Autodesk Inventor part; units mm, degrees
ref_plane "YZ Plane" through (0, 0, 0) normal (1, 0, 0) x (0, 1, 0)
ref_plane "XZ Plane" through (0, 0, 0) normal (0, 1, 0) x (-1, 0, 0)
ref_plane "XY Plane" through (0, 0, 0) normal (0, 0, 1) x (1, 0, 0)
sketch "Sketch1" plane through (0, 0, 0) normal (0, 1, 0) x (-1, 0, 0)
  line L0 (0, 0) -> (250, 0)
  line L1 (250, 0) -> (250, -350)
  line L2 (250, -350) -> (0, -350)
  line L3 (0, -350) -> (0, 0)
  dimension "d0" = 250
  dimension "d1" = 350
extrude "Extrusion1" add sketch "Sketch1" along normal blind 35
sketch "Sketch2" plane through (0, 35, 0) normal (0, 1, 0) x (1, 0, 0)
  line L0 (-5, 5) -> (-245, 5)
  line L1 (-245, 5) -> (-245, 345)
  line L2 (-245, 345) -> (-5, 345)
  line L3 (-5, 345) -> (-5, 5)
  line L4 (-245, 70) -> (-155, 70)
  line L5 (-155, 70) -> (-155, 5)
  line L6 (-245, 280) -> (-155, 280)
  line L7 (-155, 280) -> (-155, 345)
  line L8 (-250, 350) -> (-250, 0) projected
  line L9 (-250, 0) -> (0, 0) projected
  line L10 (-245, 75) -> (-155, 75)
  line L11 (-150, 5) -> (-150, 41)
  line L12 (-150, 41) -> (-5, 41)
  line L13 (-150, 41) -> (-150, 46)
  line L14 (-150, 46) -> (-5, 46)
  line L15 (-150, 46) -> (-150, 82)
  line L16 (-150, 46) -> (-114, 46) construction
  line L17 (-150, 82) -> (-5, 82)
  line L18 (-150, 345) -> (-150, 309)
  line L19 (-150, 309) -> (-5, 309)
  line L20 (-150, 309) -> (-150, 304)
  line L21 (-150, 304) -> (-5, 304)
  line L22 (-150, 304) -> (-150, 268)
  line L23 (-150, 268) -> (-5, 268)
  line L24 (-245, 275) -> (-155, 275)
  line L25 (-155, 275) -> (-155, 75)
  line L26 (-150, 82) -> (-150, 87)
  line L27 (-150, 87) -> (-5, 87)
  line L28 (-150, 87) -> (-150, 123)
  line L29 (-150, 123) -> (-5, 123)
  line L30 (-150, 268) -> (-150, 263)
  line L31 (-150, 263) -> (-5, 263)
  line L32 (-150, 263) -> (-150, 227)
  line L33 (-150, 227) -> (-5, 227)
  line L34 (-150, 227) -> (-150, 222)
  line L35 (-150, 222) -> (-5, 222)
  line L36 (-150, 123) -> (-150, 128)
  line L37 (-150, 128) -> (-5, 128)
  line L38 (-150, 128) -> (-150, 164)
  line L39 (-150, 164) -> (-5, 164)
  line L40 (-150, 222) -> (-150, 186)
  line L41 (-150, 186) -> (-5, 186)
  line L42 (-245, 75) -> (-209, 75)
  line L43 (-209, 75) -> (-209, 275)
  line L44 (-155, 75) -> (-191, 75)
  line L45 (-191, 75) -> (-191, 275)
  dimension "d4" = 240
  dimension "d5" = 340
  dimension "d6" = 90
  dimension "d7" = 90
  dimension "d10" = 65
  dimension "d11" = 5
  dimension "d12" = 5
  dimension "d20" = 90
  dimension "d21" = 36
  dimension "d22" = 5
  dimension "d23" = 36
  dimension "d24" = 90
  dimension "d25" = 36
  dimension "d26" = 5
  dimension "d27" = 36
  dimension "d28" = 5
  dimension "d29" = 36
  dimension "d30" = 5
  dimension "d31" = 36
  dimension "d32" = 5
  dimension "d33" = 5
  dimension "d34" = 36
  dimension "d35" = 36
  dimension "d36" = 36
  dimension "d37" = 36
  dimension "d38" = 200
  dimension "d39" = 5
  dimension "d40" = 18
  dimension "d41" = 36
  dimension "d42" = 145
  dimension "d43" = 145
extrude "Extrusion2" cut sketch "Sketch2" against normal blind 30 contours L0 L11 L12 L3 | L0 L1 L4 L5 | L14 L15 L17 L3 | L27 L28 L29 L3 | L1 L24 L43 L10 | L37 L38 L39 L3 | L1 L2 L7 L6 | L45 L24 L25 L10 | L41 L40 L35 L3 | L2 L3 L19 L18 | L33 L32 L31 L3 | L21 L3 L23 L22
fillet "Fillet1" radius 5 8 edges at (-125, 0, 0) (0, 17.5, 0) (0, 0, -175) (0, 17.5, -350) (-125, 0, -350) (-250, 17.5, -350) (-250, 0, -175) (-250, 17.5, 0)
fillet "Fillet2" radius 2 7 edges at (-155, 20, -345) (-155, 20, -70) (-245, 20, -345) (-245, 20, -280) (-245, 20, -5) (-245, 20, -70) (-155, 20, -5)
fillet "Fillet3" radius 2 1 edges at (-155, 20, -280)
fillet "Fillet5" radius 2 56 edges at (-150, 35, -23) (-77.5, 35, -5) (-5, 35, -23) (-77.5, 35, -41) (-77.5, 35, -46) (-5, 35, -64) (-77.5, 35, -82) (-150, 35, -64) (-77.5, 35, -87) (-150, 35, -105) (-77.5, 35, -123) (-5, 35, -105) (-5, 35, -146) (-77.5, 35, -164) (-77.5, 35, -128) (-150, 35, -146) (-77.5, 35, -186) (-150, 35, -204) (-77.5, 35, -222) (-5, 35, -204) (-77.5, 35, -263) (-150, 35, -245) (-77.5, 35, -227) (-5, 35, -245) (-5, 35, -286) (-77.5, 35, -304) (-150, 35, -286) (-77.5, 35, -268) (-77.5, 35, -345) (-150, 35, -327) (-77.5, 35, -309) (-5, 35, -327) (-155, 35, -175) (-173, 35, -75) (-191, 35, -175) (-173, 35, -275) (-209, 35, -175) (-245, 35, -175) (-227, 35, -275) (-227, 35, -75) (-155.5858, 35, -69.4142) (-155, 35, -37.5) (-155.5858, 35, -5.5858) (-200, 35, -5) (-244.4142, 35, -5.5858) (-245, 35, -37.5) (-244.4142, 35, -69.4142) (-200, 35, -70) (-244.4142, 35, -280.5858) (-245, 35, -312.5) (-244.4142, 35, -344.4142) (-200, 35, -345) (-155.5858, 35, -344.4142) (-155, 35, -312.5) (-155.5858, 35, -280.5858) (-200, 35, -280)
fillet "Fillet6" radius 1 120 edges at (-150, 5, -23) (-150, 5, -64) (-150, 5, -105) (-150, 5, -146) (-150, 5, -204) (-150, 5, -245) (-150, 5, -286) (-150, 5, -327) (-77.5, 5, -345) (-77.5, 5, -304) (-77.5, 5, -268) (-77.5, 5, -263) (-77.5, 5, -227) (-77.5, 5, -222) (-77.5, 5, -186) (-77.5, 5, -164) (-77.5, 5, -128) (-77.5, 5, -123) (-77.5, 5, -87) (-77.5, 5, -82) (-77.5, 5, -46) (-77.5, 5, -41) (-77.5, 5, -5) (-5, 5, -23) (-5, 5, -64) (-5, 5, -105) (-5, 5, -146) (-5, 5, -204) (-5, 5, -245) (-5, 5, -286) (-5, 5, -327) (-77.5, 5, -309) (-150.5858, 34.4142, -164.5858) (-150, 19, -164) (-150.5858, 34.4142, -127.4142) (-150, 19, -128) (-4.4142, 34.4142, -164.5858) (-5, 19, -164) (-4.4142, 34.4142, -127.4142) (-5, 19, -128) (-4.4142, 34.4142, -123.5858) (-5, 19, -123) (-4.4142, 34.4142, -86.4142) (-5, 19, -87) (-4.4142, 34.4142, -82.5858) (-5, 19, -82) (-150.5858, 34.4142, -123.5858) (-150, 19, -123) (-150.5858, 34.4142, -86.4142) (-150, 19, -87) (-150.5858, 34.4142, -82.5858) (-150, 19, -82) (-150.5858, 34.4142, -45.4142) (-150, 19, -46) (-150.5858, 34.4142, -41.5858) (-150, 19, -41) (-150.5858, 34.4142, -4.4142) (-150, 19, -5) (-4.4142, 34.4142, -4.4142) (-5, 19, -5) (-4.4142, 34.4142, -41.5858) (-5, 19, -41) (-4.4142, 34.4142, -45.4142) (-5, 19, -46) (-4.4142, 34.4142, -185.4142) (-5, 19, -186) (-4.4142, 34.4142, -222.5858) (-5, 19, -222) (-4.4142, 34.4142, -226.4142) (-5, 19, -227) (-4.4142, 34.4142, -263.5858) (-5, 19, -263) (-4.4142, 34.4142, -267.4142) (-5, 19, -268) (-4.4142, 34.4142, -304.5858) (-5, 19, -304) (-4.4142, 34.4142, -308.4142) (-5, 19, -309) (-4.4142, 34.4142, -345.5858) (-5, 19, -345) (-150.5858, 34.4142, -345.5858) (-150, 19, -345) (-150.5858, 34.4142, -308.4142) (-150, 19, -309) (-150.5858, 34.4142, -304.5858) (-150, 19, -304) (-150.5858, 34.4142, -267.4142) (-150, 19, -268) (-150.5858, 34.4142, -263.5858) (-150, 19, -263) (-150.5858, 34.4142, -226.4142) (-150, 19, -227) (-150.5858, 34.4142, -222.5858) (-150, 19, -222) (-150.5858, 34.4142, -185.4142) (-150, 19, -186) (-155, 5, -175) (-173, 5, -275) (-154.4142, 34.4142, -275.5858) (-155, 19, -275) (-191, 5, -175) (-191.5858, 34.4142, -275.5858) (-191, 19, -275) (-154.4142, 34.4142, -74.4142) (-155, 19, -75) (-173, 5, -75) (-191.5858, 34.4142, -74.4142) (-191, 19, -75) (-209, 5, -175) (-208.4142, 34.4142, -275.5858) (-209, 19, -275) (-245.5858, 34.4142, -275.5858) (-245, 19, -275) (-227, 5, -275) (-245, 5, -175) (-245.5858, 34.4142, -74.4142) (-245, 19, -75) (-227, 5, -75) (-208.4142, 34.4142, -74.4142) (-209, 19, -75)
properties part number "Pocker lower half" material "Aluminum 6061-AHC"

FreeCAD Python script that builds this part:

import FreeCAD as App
import Part
import Sketcher
Q = App.Units.Quantity


def edges_at(feature, points):
    """Names of the edges that pass closest to the given points."""
    edges = feature.Shape.Edges
    near = lambda p: min(range(len(edges)), key=lambda i: edges[i].distToShape(Part.Vertex(*p))[0])
    return sorted({f"Edge{near(p) + 1}" for p in points})


def add_polygon(sketch, points):
    """Adds a closed chain of lines whose ends are joined by coincident constraints."""
    first, n = sketch.GeometryCount, len(points)
    for a, b in zip(points, points[1:] + points[:1]):
        sketch.addGeometry(Part.LineSegment(App.Vector(*a, 0), App.Vector(*b, 0)), False)
    for i in range(n):
        sketch.addConstraint(Sketcher.Constraint("Coincident", first + i, 2, first + (i + 1) % n, 1))

doc = App.newDocument("Part")
body = doc.addObject("PartDesign::Body", "Body")

sketch1 = doc.addObject("Sketcher::SketchObject", "Sketch")
body.addObject(sketch1)
sketch1.AttachmentSupport = (doc.XZ_Plane, [""])
sketch1.MapMode = "FlatFace"
add_polygon(sketch1, [(-250, 0), (0, 0), (0, -350), (-250, -350)])
sketch1.addConstraint(Sketcher.Constraint("Horizontal", 0))
sketch1.addConstraint(Sketcher.Constraint("Vertical", 1))
sketch1.addConstraint(Sketcher.Constraint("Horizontal", 2))
sketch1.addConstraint(Sketcher.Constraint("Vertical", 3))
sketch1.addConstraint(Sketcher.Constraint("Coincident", 0, 2, -1, 1))
sketch1.addConstraint(Sketcher.Constraint("DistanceX", 0, 1, 0, 2, Q("250 mm")))
sketch1.addConstraint(Sketcher.Constraint("DistanceY", 1, 2, 1, 1, Q("350 mm")))
pad1 = doc.addObject("PartDesign::Pad", "Pad")
body.addObject(pad1)
pad1.Profile = sketch1
pad1.Length = 35
pad1.Reversed = True

sketch2 = doc.addObject("Sketcher::SketchObject", "Sketch001")
body.addObject(sketch2)
sketch2.AttachmentSupport = (doc.XZ_Plane, [""])
sketch2.MapMode = "FlatFace"
sketch2.AttachmentOffset = App.Placement(App.Vector(0, 0, -35), App.Rotation())
add_polygon(sketch2, [(-150, -5), (-5, -5), (-5, -41), (-150, -41)])
add_polygon(sketch2, [(-245, -5), (-155, -5), (-155, -70), (-245, -70)])
add_polygon(sketch2, [(-150, -46), (-5, -46), (-5, -82), (-150, -82)])
add_polygon(sketch2, [(-150, -87), (-5, -87), (-5, -123), (-150, -123)])
add_polygon(sketch2, [(-245, -275), (-245, -75), (-209, -75), (-209, -275)])
add_polygon(sketch2, [(-150, -128), (-5, -128), (-5, -164), (-150, -164)])
add_polygon(sketch2, [(-245, -345), (-245, -280), (-155, -280), (-155, -345)])
add_polygon(sketch2, [(-191, -275), (-191, -75), (-155, -75), (-155, -275)])
add_polygon(sketch2, [(-150, -186), (-5, -186), (-5, -222), (-150, -222)])
add_polygon(sketch2, [(-5, -345), (-150, -345), (-150, -309), (-5, -309)])
add_polygon(sketch2, [(-150, -227), (-5, -227), (-5, -263), (-150, -263)])
add_polygon(sketch2, [(-5, -304), (-150, -304), (-150, -268), (-5, -268)])
sketch2.addConstraint(Sketcher.Constraint("Horizontal", 0))
sketch2.addConstraint(Sketcher.Constraint("Vertical", 1))
sketch2.addConstraint(Sketcher.Constraint("Horizontal", 2))
sketch2.addConstraint(Sketcher.Constraint("Vertical", 3))
sketch2.addConstraint(Sketcher.Constraint("Horizontal", 4))
sketch2.addConstraint(Sketcher.Constraint("Vertical", 5))
sketch2.addConstraint(Sketcher.Constraint("Horizontal", 6))
sketch2.addConstraint(Sketcher.Constraint("Vertical", 7))
sketch2.addConstraint(Sketcher.Constraint("Horizontal", 8))
sketch2.addConstraint(Sketcher.Constraint("Vertical", 9))
sketch2.addConstraint(Sketcher.Constraint("Horizontal", 10))
sketch2.addConstraint(Sketcher.Constraint("Vertical", 11))
sketch2.addConstraint(Sketcher.Constraint("Horizontal", 12))
sketch2.addConstraint(Sketcher.Constraint("Vertical", 13))
sketch2.addConstraint(Sketcher.Constraint("Horizontal", 14))
sketch2.addConstraint(Sketcher.Constraint("Vertical", 15))
sketch2.addConstraint(Sketcher.Constraint("Vertical", 16))
sketch2.addConstraint(Sketcher.Constraint("Horizontal", 17))
sketch2.addConstraint(Sketcher.Constraint("Vertical", 18))
sketch2.addConstraint(Sketcher.Constraint("Horizontal", 19))
sketch2.addConstraint(Sketcher.Constraint("Horizontal", 20))
sketch2.addConstraint(Sketcher.Constraint("Vertical", 21))
sketch2.addConstraint(Sketcher.Constraint("Horizontal", 22))
sketch2.addConstraint(Sketcher.Constraint("Vertical", 23))
sketch2.addConstraint(Sketcher.Constraint("Vertical", 24))
sketch2.addConstraint(Sketcher.Constraint("Horizontal", 25))
sketch2.addConstraint(Sketcher.Constraint("Vertical", 26))
sketch2.addConstraint(Sketcher.Constraint("Horizontal", 27))
sketch2.addConstraint(Sketcher.Constraint("Vertical", 28))
sketch2.addConstraint(Sketcher.Constraint("Horizontal", 29))
sketch2.addConstraint(Sketcher.Constraint("Vertical", 30))
sketch2.addConstraint(Sketcher.Constraint("Horizontal", 31))
sketch2.addConstraint(Sketcher.Constraint("Horizontal", 32))
sketch2.addConstraint(Sketcher.Constraint("Vertical", 33))
sketch2.addConstraint(Sketcher.Constraint("Horizontal", 34))
sketch2.addConstraint(Sketcher.Constraint("Vertical", 35))
sketch2.addConstraint(Sketcher.Constraint("Horizontal", 36))
sketch2.addConstraint(Sketcher.Constraint("Vertical", 37))
sketch2.addConstraint(Sketcher.Constraint("Horizontal", 38))
sketch2.addConstraint(Sketcher.Constraint("Vertical", 39))
sketch2.addConstraint(Sketcher.Constraint("Horizontal", 40))
sketch2.addConstraint(Sketcher.Constraint("Vertical", 41))
sketch2.addConstraint(Sketcher.Constraint("Horizontal", 42))
sketch2.addConstraint(Sketcher.Constraint("Vertical", 43))
sketch2.addConstraint(Sketcher.Constraint("Horizontal", 44))
sketch2.addConstraint(Sketcher.Constraint("Vertical", 45))
sketch2.addConstraint(Sketcher.Constraint("Horizontal", 46))
sketch2.addConstraint(Sketcher.Constraint("Vertical", 47))
sketch2.addConstraint(Sketcher.Constraint("Horizontal", 3, 2, 4, 2))
sketch2.addConstraint(Sketcher.Constraint("Horizontal", 17, 2, 28, 2))
sketch2.addConstraint(Sketcher.Constraint("Horizontal", 19, 2, 30, 2))
sketch2.addConstraint(Sketcher.Constraint("Horizontal", 27, 2, 36, 2))
sketch2.addConstraint(Sketcher.Constraint("Vertical", 1, 2, 8, 2))
sketch2.addConstraint(Sketcher.Constraint("Vertical", 3, 2, 10, 2))
sketch2.addConstraint(Sketcher.Constraint("Vertical", 9, 2, 12, 2))
sketch2.addConstraint(Sketcher.Constraint("Vertical", 11, 2, 14, 2))
sketch2.addConstraint(Sketcher.Constraint("Vertical", 7, 2, 16, 2))
sketch2.addConstraint(Sketcher.Constraint("Vertical", 13, 2, 20, 2))
sketch2.addConstraint(Sketcher.Constraint("Vertical", 15, 2, 22, 2))
sketch2.addConstraint(Sketcher.Constraint("Vertical", 19, 2, 24, 2))
sketch2.addConstraint(Sketcher.Constraint("Vertical", 5, 2, 25, 2))
sketch2.addConstraint(Sketcher.Constraint("Vertical", 26, 2, 29, 2))
sketch2.addConstraint(Sketcher.Constraint("Vertical", 21, 2, 32, 2))
sketch2.addConstraint(Sketcher.Constraint("Vertical", 23, 2, 34, 2))
sketch2.addConstraint(Sketcher.Constraint("Vertical", 35, 2, 36, 2))
sketch2.addConstraint(Sketcher.Constraint("Vertical", 33, 2, 38, 2))
sketch2.addConstraint(Sketcher.Constraint("Vertical", 39, 2, 40, 2))
sketch2.addConstraint(Sketcher.Constraint("Vertical", 37, 2, 42, 2))
sketch2.addConstraint(Sketcher.Constraint("Vertical", 43, 2, 44, 2))
sketch2.addConstraint(Sketcher.Constraint("Vertical", 41, 2, 46, 2))
sketch2.addConstraint(Sketcher.Constraint("Equal", 19, 29))
sketch2.addConstraint(Sketcher.Constraint("Equal", 31, 1))
sketch2.addConstraint(Sketcher.Constraint("Equal", 3, 9))
sketch2.addConstraint(Sketcher.Constraint("Equal", 11, 13))
sketch2.addConstraint(Sketcher.Constraint("Equal", 15, 21))
sketch2.addConstraint(Sketcher.Constraint("Equal", 7, 24))
sketch2.addConstraint(Sketcher.Constraint("Equal", 23, 33))
sketch2.addConstraint(Sketcher.Constraint("Equal", 35, 37))
sketch2.addConstraint(Sketcher.Constraint("Equal", 39, 41))
sketch2.addConstraint(Sketcher.Constraint("Equal", 43, 45))
sketch2.addConstraint(Sketcher.Constraint("DistanceX", 0, 1, 0, 2, Q("145 mm")))
sketch2.addConstraint(Sketcher.Constraint("DistanceX", 4, 1, 4, 2, Q("90 mm")))
sketch2.addConstraint(Sketcher.Constraint("DistanceX", 17, 1, 17, 2, Q("36 mm")))
sketch2.addConstraint(Sketcher.Constraint("DistanceY", 5, 2, 5, 1, Q("65 mm")))
sketch2.addConstraint(Sketcher.Constraint("DistanceY", 16, 1, 16, 2, Q("200 mm")))
sketch2.addConstraint(Sketcher.Constraint("DistanceX", 0, 2, -1, 1, Q("5 mm")))
sketch2.addConstraint(Sketcher.Constraint("DistanceY", 0, 2, -1, 1, Q("5 mm")))
sketch2.addConstraint(Sketcher.Constraint("DistanceX", 4, 2, 3, 2, Q("5 mm")))
sketch2.addConstraint(Sketcher.Constraint("DistanceY", 8, 2, 1, 2, Q("5 mm")))
sketch2.addConstraint(Sketcher.Constraint("DistanceY", 12, 2, 9, 2, Q("5 mm")))
sketch2.addConstraint(Sketcher.Constraint("DistanceY", 16, 2, 6, 2, Q("5 mm")))
sketch2.addConstraint(Sketcher.Constraint("DistanceY", 20, 2, 13, 2, Q("5 mm")))
sketch2.addConstraint(Sketcher.Constraint("DistanceY", 24, 2, 19, 2, Q("5 mm")))
sketch2.addConstraint(Sketcher.Constraint("DistanceY", 40, 2, 33, 2, Q("5 mm")))
sketch2.addConstraint(Sketcher.Constraint("DistanceY", 37, 2, 44, 2, Q("5 mm")))
sketch2.addConstraint(Sketcher.Constraint("DistanceY", 45, 2, 42, 2, Q("5 mm")))
pocket1 = doc.addObject("PartDesign::Pocket", "Pocket")
body.addObject(pocket1)
pocket1.Profile = sketch2
pocket1.Length = 30
pocket1.Reversed = True
doc.recompute()

fillet = doc.addObject("PartDesign::Fillet", "Fillet")
body.addObject(fillet)
fillet.Base = (pocket1, edges_at(pocket1, [
    (-125, 0, 0),
    (0, 17.5, 0),
    (0, 0, -175),
    (0, 17.5, -350),
    (-125, 0, -350),
    (-250, 17.5, -350),
    (-250, 0, -175),
    (-250, 17.5, 0),
]))
fillet.Radius = 5
doc.recompute()

fillet2 = doc.addObject("PartDesign::Fillet", "Fillet001")
body.addObject(fillet2)
fillet2.Base = (fillet, edges_at(fillet, [
    (-155, 20, -345),
    (-155, 20, -70),
    (-245, 20, -345),
    (-245, 20, -280),
    (-245, 20, -5),
    (-245, 20, -70),
    (-155, 20, -5),
]))
fillet2.Radius = 2
doc.recompute()

fillet3 = doc.addObject("PartDesign::Fillet", "Fillet002")
body.addObject(fillet3)
fillet3.Base = (fillet2, edges_at(fillet2, [(-155, 20, -280)]))
fillet3.Radius = 2
doc.recompute()

fillet4 = doc.addObject("PartDesign::Fillet", "Fillet003")
body.addObject(fillet4)
fillet4.Base = (fillet3, edges_at(fillet3, [
    (-150, 35, -23),
    (-77.5, 35, -5),
    (-5, 35, -23),
    (-77.5, 35, -41),
    (-77.5, 35, -46),
    (-5, 35, -64),
    (-77.5, 35, -82),
    (-150, 35, -64),
    (-77.5, 35, -87),
    (-150, 35, -105),
    (-77.5, 35, -123),
    (-5, 35, -105),
    (-5, 35, -146),
    (-77.5, 35, -164),
    (-77.5, 35, -128),
    (-150, 35, -146),
    (-77.5, 35, -186),
    (-150, 35, -204),
    (-77.5, 35, -222),
    (-5, 35, -204),
    (-77.5, 35, -263),
    (-150, 35, -245),
    (-77.5, 35, -227),
    (-5, 35, -245),
    (-5, 35, -286),
    (-77.5, 35, -304),
    (-150, 35, -286),
    (-77.5, 35, -268),
    (-77.5, 35, -345),
    (-150, 35, -327),
    (-77.5, 35, -309),
    (-5, 35, -327),
    (-155, 35, -175),
    (-173, 35, -75),
    (-191, 35, -175),
    (-173, 35, -275),
    (-209, 35, -175),
    (-245, 35, -175),
    (-227, 35, -275),
    (-227, 35, -75),
    (-155.586, 35, -69.414),
    (-155, 35, -37.5),
    (-155.586, 35, -5.586),
    (-200, 35, -5),
    (-244.414, 35, -5.586),
    (-245, 35, -37.5),
    (-244.414, 35, -69.414),
    (-200, 35, -70),
    (-244.414, 35, -280.586),
    (-245, 35, -312.5),
    (-244.414, 35, -344.414),
    (-200, 35, -345),
    (-155.586, 35, -344.414),
    (-155, 35, -312.5),
    (-155.586, 35, -280.586),
    (-200, 35, -280),
]))
fillet4.Radius = 2
doc.recompute()

fillet5 = doc.addObject("PartDesign::Fillet", "Fillet004")
body.addObject(fillet5)
fillet5.Base = (fillet4, edges_at(fillet4, [
    (-150, 5, -23),
    (-150, 5, -64),
    (-150, 5, -105),
    (-150, 5, -146),
    (-150, 5, -204),
    (-150, 5, -245),
    (-150, 5, -286),
    (-150, 5, -327),
    (-77.5, 5, -345),
    (-77.5, 5, -304),
    (-77.5, 5, -268),
    (-77.5, 5, -263),
    (-77.5, 5, -227),
    (-77.5, 5, -222),
    (-77.5, 5, -186),
    (-77.5, 5, -164),
    (-77.5, 5, -128),
    (-77.5, 5, -123),
    (-77.5, 5, -87),
    (-77.5, 5, -82),
    (-77.5, 5, -46),
    (-77.5, 5, -41),
    (-77.5, 5, -5),
    (-5, 5, -23),
    (-5, 5, -64),
    (-5, 5, -105),
    (-5, 5, -146),
    (-5, 5, -204),
    (-5, 5, -245),
    (-5, 5, -286),
    (-5, 5, -327),
    (-77.5, 5, -309),
    (-150.586, 34.414, -164.586),
    (-150, 19, -164),
    (-150.586, 34.414, -127.414),
    (-150, 19, -128),
    (-4.414, 34.414, -164.586),
    (-5, 19, -164),
    (-4.414, 34.414, -127.414),
    (-5, 19, -128),
    (-4.414, 34.414, -123.586),
    (-5, 19, -123),
    (-4.414, 34.414, -86.414),
    (-5, 19, -87),
    (-4.414, 34.414, -82.586),
    (-5, 19, -82),
    (-150.586, 34.414, -123.586),
    (-150, 19, -123),
    (-150.586, 34.414, -86.414),
    (-150, 19, -87),
    (-150.586, 34.414, -82.586),
    (-150, 19, -82),
    (-150.586, 34.414, -45.414),
    (-150, 19, -46),
    (-150.586, 34.414, -41.586),
    (-150, 19, -41),
    (-150.586, 34.414, -4.414),
    (-150, 19, -5),
    (-4.414, 34.414, -4.414),
    (-5, 19, -5),
    (-4.414, 34.414, -41.586),
    (-5, 19, -41),
    (-4.414, 34.414, -45.414),
    (-5, 19, -46),
    (-4.414, 34.414, -185.414),
    (-5, 19, -186),
    (-4.414, 34.414, -222.586),
    (-5, 19, -222),
    (-4.414, 34.414, -226.414),
    (-5, 19, -227),
    (-4.414, 34.414, -263.586),
    (-5, 19, -263),
    (-4.414, 34.414, -267.414),
    (-5, 19, -268),
    (-4.414, 34.414, -304.586),
    (-5, 19, -304),
    (-4.414, 34.414, -308.414),
    (-5, 19, -309),
    (-4.414, 34.414, -345.586),
    (-5, 19, -345),
    (-150.586, 34.414, -345.586),
    (-150, 19, -345),
    (-150.586, 34.414, -308.414),
    (-150, 19, -309),
    (-150.586, 34.414, -304.586),
    (-150, 19, -304),
    (-150.586, 34.414, -267.414),
    (-150, 19, -268),
    (-150.586, 34.414, -263.586),
    (-150, 19, -263),
    (-150.586, 34.414, -226.414),
    (-150, 19, -227),
    (-150.586, 34.414, -222.586),
    (-150, 19, -222),
    (-150.586, 34.414, -185.414),
    (-150, 19, -186),
    (-155, 5, -175),
    (-173, 5, -275),
    (-154.414, 34.414, -275.586),
    (-155, 19, -275),
    (-191, 5, -175),
    (-191.586, 34.414, -275.586),
    (-191, 19, -275),
    (-154.414, 34.414, -74.414),
    (-155, 19, -75),
    (-173, 5, -75),
    (-191.586, 34.414, -74.414),
    (-191, 19, -75),
    (-209, 5, -175),
    (-208.414, 34.414, -275.586),
    (-209, 19, -275),
    (-245.586, 34.414, -275.586),
    (-245, 19, -275),
    (-227, 5, -275),
    (-245, 5, -175),
    (-245.586, 34.414, -74.414),
    (-245, 19, -75),
    (-227, 5, -75),
    (-208.414, 34.414, -74.414),
    (-209, 19, -75),
]))
fillet5.Radius = 1

doc.recompute()
